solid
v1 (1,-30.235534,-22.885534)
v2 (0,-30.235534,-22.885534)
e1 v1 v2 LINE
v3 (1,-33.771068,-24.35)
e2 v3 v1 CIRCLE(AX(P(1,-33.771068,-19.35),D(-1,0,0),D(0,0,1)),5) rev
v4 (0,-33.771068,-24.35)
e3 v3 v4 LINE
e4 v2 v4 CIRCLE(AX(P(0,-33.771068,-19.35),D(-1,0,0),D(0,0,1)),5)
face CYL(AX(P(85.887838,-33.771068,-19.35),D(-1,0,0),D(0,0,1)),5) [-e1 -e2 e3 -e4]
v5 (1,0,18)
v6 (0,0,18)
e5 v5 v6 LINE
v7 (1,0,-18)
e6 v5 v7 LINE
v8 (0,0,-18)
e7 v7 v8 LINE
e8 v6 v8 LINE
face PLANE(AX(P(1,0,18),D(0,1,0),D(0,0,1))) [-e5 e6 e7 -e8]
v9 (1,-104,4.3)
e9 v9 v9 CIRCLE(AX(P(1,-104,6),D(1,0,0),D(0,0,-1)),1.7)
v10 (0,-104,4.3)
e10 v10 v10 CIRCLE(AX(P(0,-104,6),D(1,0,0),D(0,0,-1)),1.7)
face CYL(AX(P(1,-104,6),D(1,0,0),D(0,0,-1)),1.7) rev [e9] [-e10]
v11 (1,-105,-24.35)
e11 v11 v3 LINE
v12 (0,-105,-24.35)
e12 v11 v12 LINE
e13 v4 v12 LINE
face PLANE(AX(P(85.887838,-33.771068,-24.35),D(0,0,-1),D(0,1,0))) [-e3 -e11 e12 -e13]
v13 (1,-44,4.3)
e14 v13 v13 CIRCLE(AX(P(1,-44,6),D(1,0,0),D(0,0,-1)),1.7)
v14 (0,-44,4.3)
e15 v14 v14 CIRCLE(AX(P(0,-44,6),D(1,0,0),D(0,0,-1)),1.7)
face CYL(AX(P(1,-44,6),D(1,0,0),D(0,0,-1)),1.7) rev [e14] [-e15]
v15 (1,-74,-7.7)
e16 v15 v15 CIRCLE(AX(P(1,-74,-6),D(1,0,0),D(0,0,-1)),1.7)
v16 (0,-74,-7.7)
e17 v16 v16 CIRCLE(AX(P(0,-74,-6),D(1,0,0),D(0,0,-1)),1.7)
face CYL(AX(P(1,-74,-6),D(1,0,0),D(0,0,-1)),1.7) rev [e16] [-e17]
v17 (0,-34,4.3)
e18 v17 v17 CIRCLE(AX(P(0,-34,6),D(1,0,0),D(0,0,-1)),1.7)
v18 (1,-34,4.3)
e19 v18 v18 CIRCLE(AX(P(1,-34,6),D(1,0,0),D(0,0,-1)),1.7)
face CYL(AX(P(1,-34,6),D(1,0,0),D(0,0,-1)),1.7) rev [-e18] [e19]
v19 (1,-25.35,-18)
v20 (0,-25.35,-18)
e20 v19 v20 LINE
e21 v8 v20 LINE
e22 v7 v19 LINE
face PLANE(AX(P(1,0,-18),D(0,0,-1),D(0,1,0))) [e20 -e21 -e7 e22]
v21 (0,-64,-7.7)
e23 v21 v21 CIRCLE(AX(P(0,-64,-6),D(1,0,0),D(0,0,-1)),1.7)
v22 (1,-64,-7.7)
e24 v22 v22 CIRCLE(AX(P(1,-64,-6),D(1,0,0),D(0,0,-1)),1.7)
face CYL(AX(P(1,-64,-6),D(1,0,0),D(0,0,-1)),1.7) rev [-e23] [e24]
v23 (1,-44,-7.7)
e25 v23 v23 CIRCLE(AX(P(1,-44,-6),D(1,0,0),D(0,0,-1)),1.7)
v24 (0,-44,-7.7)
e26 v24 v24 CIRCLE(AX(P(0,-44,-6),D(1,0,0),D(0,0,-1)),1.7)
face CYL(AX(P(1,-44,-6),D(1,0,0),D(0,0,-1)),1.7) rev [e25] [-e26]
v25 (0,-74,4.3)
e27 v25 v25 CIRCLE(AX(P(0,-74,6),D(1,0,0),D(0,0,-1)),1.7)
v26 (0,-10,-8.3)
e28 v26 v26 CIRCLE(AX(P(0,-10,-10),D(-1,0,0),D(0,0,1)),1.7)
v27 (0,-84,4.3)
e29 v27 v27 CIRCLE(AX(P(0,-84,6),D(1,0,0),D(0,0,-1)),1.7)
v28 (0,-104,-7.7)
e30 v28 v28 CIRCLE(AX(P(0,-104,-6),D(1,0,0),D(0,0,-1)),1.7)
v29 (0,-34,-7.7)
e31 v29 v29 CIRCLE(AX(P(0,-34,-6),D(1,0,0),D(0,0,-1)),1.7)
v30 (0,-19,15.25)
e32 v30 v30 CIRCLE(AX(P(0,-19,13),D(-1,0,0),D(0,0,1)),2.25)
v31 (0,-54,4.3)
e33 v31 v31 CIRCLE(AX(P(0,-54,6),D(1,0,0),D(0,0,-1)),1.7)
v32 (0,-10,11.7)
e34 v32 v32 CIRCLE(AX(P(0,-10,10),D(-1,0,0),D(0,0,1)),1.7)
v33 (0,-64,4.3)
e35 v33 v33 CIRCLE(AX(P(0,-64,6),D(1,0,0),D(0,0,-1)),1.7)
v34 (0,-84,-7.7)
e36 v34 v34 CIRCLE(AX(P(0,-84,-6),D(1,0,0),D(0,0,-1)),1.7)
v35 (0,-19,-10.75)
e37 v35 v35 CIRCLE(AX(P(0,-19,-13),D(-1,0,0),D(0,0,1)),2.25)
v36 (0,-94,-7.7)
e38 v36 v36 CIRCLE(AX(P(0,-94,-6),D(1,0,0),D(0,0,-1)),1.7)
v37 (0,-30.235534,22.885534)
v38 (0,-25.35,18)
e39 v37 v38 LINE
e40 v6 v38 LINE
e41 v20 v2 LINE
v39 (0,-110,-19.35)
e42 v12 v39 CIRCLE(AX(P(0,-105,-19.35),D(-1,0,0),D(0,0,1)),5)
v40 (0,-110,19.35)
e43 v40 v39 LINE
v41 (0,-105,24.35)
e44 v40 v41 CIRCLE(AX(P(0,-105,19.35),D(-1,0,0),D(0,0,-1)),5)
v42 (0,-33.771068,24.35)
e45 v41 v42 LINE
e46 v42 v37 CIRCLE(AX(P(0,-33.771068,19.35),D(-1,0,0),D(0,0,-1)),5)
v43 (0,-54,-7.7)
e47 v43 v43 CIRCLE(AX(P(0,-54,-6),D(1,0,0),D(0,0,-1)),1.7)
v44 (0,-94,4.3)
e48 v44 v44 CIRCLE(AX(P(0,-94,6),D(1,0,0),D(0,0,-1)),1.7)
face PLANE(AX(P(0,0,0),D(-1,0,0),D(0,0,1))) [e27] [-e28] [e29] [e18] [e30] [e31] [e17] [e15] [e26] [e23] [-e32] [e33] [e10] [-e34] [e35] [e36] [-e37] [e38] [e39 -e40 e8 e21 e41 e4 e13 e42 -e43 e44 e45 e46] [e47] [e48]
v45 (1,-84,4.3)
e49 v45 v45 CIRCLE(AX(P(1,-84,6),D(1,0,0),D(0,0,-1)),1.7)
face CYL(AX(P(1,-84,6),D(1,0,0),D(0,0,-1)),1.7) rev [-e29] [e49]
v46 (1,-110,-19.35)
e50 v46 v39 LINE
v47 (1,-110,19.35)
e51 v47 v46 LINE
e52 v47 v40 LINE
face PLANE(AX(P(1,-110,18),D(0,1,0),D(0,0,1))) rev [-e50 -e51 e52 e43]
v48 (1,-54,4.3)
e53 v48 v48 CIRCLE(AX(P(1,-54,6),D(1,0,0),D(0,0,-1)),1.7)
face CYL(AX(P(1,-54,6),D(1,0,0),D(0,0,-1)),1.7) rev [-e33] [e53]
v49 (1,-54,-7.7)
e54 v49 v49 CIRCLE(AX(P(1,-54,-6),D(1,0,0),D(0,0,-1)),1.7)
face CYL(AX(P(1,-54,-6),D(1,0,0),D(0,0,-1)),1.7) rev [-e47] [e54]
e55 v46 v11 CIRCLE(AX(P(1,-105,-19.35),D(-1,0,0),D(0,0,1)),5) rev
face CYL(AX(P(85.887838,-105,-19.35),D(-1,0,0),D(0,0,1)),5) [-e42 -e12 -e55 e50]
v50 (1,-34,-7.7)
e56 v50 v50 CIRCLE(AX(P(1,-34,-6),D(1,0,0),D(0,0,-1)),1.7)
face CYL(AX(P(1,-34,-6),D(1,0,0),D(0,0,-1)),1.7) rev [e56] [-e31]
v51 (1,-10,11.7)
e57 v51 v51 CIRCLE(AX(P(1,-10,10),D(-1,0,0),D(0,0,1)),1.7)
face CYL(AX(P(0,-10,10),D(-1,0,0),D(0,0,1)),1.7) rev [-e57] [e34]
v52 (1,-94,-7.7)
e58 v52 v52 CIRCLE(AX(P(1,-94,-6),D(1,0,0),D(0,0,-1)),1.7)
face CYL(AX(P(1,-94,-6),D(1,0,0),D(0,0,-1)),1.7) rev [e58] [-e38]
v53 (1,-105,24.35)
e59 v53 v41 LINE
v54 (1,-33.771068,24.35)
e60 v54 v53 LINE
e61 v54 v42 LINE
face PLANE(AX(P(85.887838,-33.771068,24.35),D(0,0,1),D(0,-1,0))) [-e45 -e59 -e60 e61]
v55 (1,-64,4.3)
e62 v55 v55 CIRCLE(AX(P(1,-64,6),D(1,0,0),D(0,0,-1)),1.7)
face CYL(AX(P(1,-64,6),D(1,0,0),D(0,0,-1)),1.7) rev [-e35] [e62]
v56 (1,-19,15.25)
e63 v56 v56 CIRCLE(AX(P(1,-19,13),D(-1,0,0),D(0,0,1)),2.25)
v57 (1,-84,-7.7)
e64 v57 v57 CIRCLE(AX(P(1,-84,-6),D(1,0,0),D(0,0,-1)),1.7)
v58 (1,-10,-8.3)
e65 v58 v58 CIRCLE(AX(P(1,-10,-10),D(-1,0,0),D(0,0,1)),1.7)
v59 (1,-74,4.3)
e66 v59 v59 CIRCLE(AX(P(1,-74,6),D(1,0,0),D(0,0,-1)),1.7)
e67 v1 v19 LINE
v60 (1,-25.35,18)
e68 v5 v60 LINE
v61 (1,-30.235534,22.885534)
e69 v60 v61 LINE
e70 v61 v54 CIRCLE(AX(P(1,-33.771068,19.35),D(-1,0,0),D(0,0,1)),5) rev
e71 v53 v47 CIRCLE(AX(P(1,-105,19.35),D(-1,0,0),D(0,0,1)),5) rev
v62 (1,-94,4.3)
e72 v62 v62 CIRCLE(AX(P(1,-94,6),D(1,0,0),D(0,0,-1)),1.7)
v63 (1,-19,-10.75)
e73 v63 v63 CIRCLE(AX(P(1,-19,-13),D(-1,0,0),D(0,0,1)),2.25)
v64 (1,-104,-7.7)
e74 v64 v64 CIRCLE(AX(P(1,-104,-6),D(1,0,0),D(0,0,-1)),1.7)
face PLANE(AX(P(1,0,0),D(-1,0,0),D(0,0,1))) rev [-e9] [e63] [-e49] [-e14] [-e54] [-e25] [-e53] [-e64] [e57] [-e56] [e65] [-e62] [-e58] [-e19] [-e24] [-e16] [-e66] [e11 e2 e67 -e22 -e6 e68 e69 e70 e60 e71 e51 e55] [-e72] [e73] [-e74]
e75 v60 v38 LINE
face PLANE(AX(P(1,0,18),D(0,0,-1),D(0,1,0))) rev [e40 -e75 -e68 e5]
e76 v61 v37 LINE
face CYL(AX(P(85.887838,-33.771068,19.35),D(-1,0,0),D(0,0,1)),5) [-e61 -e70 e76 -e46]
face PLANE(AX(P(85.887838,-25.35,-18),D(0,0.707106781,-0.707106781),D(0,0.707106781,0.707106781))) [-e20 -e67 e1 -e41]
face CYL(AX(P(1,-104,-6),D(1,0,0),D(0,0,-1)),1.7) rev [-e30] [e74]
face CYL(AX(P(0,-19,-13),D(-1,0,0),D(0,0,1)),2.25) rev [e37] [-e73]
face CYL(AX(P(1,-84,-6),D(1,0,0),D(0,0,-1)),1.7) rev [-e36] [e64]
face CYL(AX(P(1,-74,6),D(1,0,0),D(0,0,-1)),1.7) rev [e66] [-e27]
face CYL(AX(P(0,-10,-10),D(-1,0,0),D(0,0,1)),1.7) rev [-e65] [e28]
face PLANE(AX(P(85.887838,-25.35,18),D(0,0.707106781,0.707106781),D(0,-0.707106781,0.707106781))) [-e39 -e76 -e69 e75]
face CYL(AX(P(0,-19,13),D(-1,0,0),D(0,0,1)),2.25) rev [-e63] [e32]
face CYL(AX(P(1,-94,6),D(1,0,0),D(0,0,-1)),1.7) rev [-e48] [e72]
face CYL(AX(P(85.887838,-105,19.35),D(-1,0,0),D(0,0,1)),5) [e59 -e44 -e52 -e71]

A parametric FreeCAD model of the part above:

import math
import FreeCAD as App
import Part
import Sketcher

V = App.Vector


def add_polygon(sketch, points):
    """Adds a closed chain of lines whose ends are joined by coincident constraints."""
    first, n = sketch.GeometryCount, len(points)
    for a, b in zip(points, points[1:] + points[:1]):
        sketch.addGeometry(Part.LineSegment(App.Vector(*a, 0), App.Vector(*b, 0)), False)
    for i in range(n):
        sketch.addConstraint(Sketcher.Constraint("Coincident", first + i, 2, first + (i + 1) % n, 1))

doc = App.newDocument("Part")
body = doc.addObject("PartDesign::Body", "Body")

sketch1 = body.newObject("Sketcher::SketchObject", "Sketch")
sketch1.AttachmentSupport = (doc.getObject("YZ_Plane"), [""])
sketch1.MapMode = "FlatFace"
add_polygon(sketch1, [(0, 18), (-110, 18), (-110, -18), (0, -18)])
sketch1.addConstraint([
    Sketcher.Constraint("Horizontal", 0),
    Sketcher.Constraint("Vertical", 1),
    Sketcher.Constraint("Horizontal", 2),
    Sketcher.Constraint("Vertical", 3),
    Sketcher.Constraint("Symmetric", 2, 2, 3, 2, -1, 1),
    Sketcher.Constraint("DistanceX", 0, 2, 0, 1, 110.0),
    Sketcher.Constraint("DistanceY", 1, 2, 1, 1, 36.0),
])
pad1 = body.newObject("PartDesign::Pad", "Pad")
pad1.Profile = sketch1
pad1.Length = 1

sketch2 = body.newObject("Sketcher::SketchObject", "Sketch001")
sketch2.AttachmentSupport = (doc.getObject("YZ_Plane"), [""])
sketch2.MapMode = "FlatFace"
sketch2.addGeometry([
    Part.Circle(V(-10, -10, 0), V(0, 0, 1), 1.7),
    Part.Circle(V(-10, 10, 0), V(0, 0, 1), 1.7),
], False)
sketch2.addConstraint([
    Sketcher.Constraint("Equal", 0, 1),
    Sketcher.Constraint("Symmetric", 0, 3, 1, 3, -1),
    Sketcher.Constraint("Diameter", 0, 3.4),
    Sketcher.Constraint("DistanceX", 0, 3, -1, 1, 10.0),
    Sketcher.Constraint("DistanceY", 0, 3, -1, 1, 10.0),
])
doc.recompute()
hole = body.newObject("PartDesign::Hole", "Hole")
hole.Profile = sketch2
hole.ThreadType = "None"
hole.Diameter = 3.4
hole.DepthType = "ThroughAll"
hole.Reversed = True

sketch3 = body.newObject("Sketcher::SketchObject", "Sketch002")
sketch3.AttachmentSupport = (doc.getObject("YZ_Plane"), [""])
sketch3.MapMode = "FlatFace"
sketch3.addGeometry([
    Part.Circle(V(-19, -13, 0), V(0, 0, 1), 2.2),
    Part.Circle(V(-19, 13, 0), V(0, 0, 1), 2.2),
], False)
sketch3.addConstraint([
    Sketcher.Constraint("Equal", 0, 1),
    Sketcher.Constraint("Symmetric", 0, 3, 1, 3, -1),
    Sketcher.Constraint("Diameter", 0, 4.5),
    Sketcher.Constraint("DistanceX", 0, 3, -1, 1, 19.0),
    Sketcher.Constraint("DistanceY", 0, 3, -1, 1, 13.0),
])
doc.recompute()
hole2 = body.newObject("PartDesign::Hole", "Hole001")
hole2.Profile = sketch3
hole2.ThreadType = "None"
hole2.Diameter = 4.5
hole2.DepthType = "ThroughAll"
hole2.Reversed = True

sketch4 = body.newObject("Sketcher::SketchObject", "Sketch003")
sketch4.AttachmentSupport = (doc.getObject("YZ_Plane"), [""])
sketch4.MapMode = "FlatFace"
sketch4.AttachmentOffset = App.Placement(V(0, 0, 1), App.Rotation())
sketch4.addGeometry([
    Part.Circle(V(-104, -6, 0), V(0, 0, 1), 1.7),
    Part.Circle(V(-104, 6, 0), V(0, 0, 1), 1.7),
    Part.Circle(V(-94, -6, 0), V(0, 0, 1), 1.7),
    Part.Circle(V(-94, 6, 0), V(0, 0, 1), 1.7),
    Part.Circle(V(-84, -6, 0), V(0, 0, 1), 1.7),
    Part.Circle(V(-84, 6, 0), V(0, 0, 1), 1.7),
    Part.Circle(V(-74, -6, 0), V(0, 0, 1), 1.7),
    Part.Circle(V(-74, 6, 0), V(0, 0, 1), 1.7),
    Part.Circle(V(-64, -6, 0), V(0, 0, 1), 1.7),
    Part.Circle(V(-64, 6, 0), V(0, 0, 1), 1.7),
    Part.Circle(V(-54, -6, 0), V(0, 0, 1), 1.7),
    Part.Circle(V(-54, 6, 0), V(0, 0, 1), 1.7),
    Part.Circle(V(-44, -6, 0), V(0, 0, 1), 1.7),
    Part.Circle(V(-44, 6, 0), V(0, 0, 1), 1.7),
    Part.Circle(V(-34, -6, 0), V(0, 0, 1), 1.7),
    Part.Circle(V(-34, 6, 0), V(0, 0, 1), 1.7),
], False)
sketch4.addConstraint([
    Sketcher.Constraint("Equal", 0, 1),
    Sketcher.Constraint("Equal", 1, 2),
    Sketcher.Constraint("Equal", 2, 3),
    Sketcher.Constraint("Equal", 3, 4),
    Sketcher.Constraint("Equal", 4, 5),
    Sketcher.Constraint("Equal", 5, 6),
    Sketcher.Constraint("Equal", 6, 7),
    Sketcher.Constraint("Equal", 7, 8),
    Sketcher.Constraint("Equal", 8, 9),
    Sketcher.Constraint("Equal", 9, 10),
    Sketcher.Constraint("Equal", 10, 11),
    Sketcher.Constraint("Equal", 11, 12),
    Sketcher.Constraint("Equal", 12, 13),
    Sketcher.Constraint("Equal", 13, 14),
    Sketcher.Constraint("Equal", 14, 15),
    Sketcher.Constraint("Symmetric", 0, 3, 1, 3, -1),
    Sketcher.Constraint("Symmetric", 2, 3, 3, 3, -1),
    Sketcher.Constraint("Symmetric", 4, 3, 5, 3, -1),
    Sketcher.Constraint("Symmetric", 6, 3, 7, 3, -1),
    Sketcher.Constraint("Symmetric", 8, 3, 9, 3, -1),
    Sketcher.Constraint("Symmetric", 10, 3, 11, 3, -1),
    Sketcher.Constraint("Symmetric", 12, 3, 13, 3, -1),
    Sketcher.Constraint("Symmetric", 14, 3, 15, 3, -1),
    Sketcher.Constraint("Horizontal", 0, 3, 2, 3),
    Sketcher.Constraint("Horizontal", 2, 3, 4, 3),
    Sketcher.Constraint("Horizontal", 4, 3, 6, 3),
    Sketcher.Constraint("Horizontal", 6, 3, 8, 3),
    Sketcher.Constraint("Horizontal", 8, 3, 10, 3),
    Sketcher.Constraint("Horizontal", 10, 3, 12, 3),
    Sketcher.Constraint("Horizontal", 12, 3, 14, 3),
    Sketcher.Constraint("Diameter", 0, 3.4),
    Sketcher.Constraint("DistanceX", 0, 3, -1, 1, 104.0),
    Sketcher.Constraint("DistanceY", 0, 3, -1, 1, 6.0),
    Sketcher.Constraint("DistanceX", 2, 3, -1, 1, 94.0),
    Sketcher.Constraint("DistanceX", 4, 3, -1, 1, 84.0),
    Sketcher.Constraint("DistanceX", 6, 3, -1, 1, 74.0),
    Sketcher.Constraint("DistanceX", 8, 3, -1, 1, 64.0),
    Sketcher.Constraint("DistanceX", 10, 3, -1, 1, 54.0),
    Sketcher.Constraint("DistanceX", 12, 3, -1, 1, 44.0),
    Sketcher.Constraint("DistanceX", 14, 3, -1, 1, 34.0),
])
doc.recompute()
hole3 = body.newObject("PartDesign::Hole", "Hole002")
hole3.Profile = sketch4
hole3.ThreadType = "None"
hole3.Diameter = 3.4
hole3.DepthType = "ThroughAll"

sketch5 = body.newObject("Sketcher::SketchObject", "Sketch004")
sketch5.AttachmentSupport = (doc.getObject("YZ_Plane"), [""])
sketch5.MapMode = "FlatFace"
sketch5.addGeometry([
    Part.LineSegment(V(-30.2, 22.9, 0), V(-25.4, 18, 0)),
    Part.LineSegment(V(-25.4, 18, 0), V(-110, 18, 0)),
    Part.LineSegment(V(-110, 18, 0), V(-110, 19.4, 0)),
    Part.ArcOfCircle(Part.Circle(V(-105, 19.4, 0), V(0, 0, 1), 5), math.radians(90), math.radians(180)),
    Part.LineSegment(V(-105, 24.4, 0), V(-33.8, 24.4, 0)),
    Part.ArcOfCircle(Part.Circle(V(-33.8, 19.4, 0), V(0, 0, 1), 5), math.radians(45), math.radians(90)),
    Part.LineSegment(V(-25.4, -18, 0), V(-30.2, -22.9, 0)),
    Part.ArcOfCircle(Part.Circle(V(-33.8, -19.4, 0), V(0, 0, 1), 5), math.radians(-90), math.radians(-45)),
    Part.LineSegment(V(-33.8, -24.4, 0), V(-105, -24.4, 0)),
    Part.ArcOfCircle(Part.Circle(V(-105, -19.4, 0), V(0, 0, 1), 5), math.radians(180), math.radians(270)),
    Part.LineSegment(V(-110, -19.4, 0), V(-110, -18, 0)),
    Part.LineSegment(V(-110, -18, 0), V(-25.4, -18, 0)),
], False)
sketch5.addConstraint([
    Sketcher.Constraint("Coincident", 0, 2, 1, 1),
    Sketcher.Constraint("Coincident", 1, 2, 2, 1),
    Sketcher.Constraint("Tangent", 2, 2, 3, 2),
    Sketcher.Constraint("Tangent", 3, 1, 4, 1),
    Sketcher.Constraint("Tangent", 4, 2, 5, 2),
    Sketcher.Constraint("Tangent", 5, 1, 0, 1),
    Sketcher.Constraint("Tangent", 6, 2, 7, 2),
    Sketcher.Constraint("Tangent", 7, 1, 8, 1),
    Sketcher.Constraint("Tangent", 8, 2, 9, 2),
    Sketcher.Constraint("Tangent", 9, 1, 10, 1),
    Sketcher.Constraint("Coincident", 10, 2, 11, 1),
    Sketcher.Constraint("Coincident", 11, 2, 6, 1),
    Sketcher.Constraint("Horizontal", 1),
    Sketcher.Constraint("Vertical", 2),
    Sketcher.Constraint("Horizontal", 4),
    Sketcher.Constraint("Horizontal", 8),
    Sketcher.Constraint("Vertical", 10),
    Sketcher.Constraint("Horizontal", 11),
    Sketcher.Constraint("Equal", 3, 5),
    Sketcher.Constraint("Equal", 5, 7),
    Sketcher.Constraint("Equal", 7, 9),
    Sketcher.Constraint("Symmetric", 5, 3, 7, 3, -1),
    Sketcher.Constraint("Symmetric", 1, 2, 10, 2, -1),
    Sketcher.Constraint("Perpendicular", 0, 6),
    Sketcher.Constraint("Vertical", 5, 1, 6, 2),
    Sketcher.Constraint("Radius", 3, 5.0),
    Sketcher.Constraint("DistanceX", 3, 3, -1, 1, 105.0),
    Sketcher.Constraint("DistanceY", -1, 1, 0, 2, 18.0),
    Sketcher.Constraint("DistanceX", 1, 2, 1, 1, 84.65),
    Sketcher.Constraint("DistanceY", 2, 1, 2, 2, 1.35),
])
pad2 = body.newObject("PartDesign::Pad", "Pad001")
pad2.Profile = sketch5
pad2.Length = 1

doc.recompute()
